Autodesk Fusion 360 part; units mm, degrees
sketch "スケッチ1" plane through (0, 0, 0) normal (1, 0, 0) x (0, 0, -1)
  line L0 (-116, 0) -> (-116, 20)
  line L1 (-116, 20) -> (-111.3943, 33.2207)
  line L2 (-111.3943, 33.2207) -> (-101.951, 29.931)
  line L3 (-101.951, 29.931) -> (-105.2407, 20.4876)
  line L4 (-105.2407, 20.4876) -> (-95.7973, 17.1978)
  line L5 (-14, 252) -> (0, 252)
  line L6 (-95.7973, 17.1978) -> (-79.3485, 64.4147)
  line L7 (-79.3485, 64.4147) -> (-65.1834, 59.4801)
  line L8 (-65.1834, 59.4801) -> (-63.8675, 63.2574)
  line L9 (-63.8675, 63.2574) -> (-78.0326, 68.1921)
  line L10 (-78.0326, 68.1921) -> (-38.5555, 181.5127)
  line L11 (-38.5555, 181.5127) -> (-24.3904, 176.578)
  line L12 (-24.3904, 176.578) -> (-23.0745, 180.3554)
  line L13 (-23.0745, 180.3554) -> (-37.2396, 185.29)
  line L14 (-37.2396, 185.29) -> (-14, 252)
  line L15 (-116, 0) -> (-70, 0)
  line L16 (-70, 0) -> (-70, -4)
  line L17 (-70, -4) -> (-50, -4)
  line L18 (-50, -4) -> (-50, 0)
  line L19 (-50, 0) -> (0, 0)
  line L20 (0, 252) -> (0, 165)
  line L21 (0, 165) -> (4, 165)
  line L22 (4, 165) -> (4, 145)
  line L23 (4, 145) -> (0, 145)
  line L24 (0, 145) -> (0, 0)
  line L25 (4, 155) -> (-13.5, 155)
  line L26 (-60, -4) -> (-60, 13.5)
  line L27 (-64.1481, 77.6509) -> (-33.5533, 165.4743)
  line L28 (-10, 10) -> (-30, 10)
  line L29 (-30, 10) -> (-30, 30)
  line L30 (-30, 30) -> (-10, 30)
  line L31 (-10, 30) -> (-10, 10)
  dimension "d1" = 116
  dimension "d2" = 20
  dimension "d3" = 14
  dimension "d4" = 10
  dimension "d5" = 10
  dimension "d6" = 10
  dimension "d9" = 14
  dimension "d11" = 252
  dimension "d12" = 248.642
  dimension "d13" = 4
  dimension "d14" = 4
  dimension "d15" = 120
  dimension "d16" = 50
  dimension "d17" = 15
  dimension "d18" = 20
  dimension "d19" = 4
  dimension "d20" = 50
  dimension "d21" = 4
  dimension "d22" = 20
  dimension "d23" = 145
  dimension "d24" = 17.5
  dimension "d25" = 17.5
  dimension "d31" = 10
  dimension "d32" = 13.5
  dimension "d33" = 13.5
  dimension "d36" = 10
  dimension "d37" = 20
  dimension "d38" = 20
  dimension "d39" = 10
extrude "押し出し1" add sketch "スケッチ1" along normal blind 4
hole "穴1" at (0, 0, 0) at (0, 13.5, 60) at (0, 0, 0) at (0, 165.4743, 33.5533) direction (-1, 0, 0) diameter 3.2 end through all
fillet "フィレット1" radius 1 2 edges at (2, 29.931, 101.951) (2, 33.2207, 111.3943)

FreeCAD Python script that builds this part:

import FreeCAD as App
import Part
import Sketcher
from FreeCAD import Vector


def edges_at(feature, points):
    """Names of the edges that pass closest to the given points."""
    edges = feature.Shape.Edges
    near = lambda p: min(range(len(edges)), key=lambda i: edges[i].distToShape(Part.Vertex(*p))[0])
    return sorted({f"Edge{near(p) + 1}" for p in points})


def add_polygon(sketch, points):
    """Adds a closed chain of lines whose ends are joined by coincident constraints."""
    first, n = sketch.GeometryCount, len(points)
    for a, b in zip(points, points[1:] + points[:1]):
        sketch.addGeometry(Part.LineSegment(App.Vector(*a, 0), App.Vector(*b, 0)), False)
    for i in range(n):
        sketch.addConstraint(Sketcher.Constraint("Coincident", first + i, 2, first + (i + 1) % n, 1))

doc = App.newDocument("Part")
body = doc.addObject("PartDesign::Body", "Body")

# Sketch on YZ plane
sketch1 = body.newObject("Sketcher::SketchObject", "Sketch")
sketch1.AttachmentSupport = (doc.getObject("YZ_Plane"), [""])
sketch1.MapMode = "FlatFace"
add_polygon(sketch1, [(20, 116), (0, 116), (0, 70), (-4, 70), (-4, 50), (0, 50), (0, 0), (145, 0), (145, -4), (165, -4), (165, 0), (252, 0), (252, 14), (185.29, 37.2396), (180.3554, 23.0745), (176.578, 24.3904), (181.5127, 38.5555), (68.1921, 78.0326), (63.2574, 63.8675), (59.4801, 65.1834), (64.4147, 79.3485), (17.1978, 95.7973), (20.4876, 105.2407), (29.931, 101.951), (33.2207, 111.3943)])  # lines 0-24
add_polygon(sketch1, [(30, 10), (10, 10), (10, 30), (30, 30)])  # lines 25-28
sketch1.addConstraint([
    Sketcher.Constraint("Horizontal", 0),
    Sketcher.Constraint("Vertical", 1),
    Sketcher.Constraint("Horizontal", 2),
    Sketcher.Constraint("Vertical", 3),
    Sketcher.Constraint("Horizontal", 4),
    Sketcher.Constraint("Vertical", 5),
    Sketcher.Constraint("Horizontal", 6),
    Sketcher.Constraint("Vertical", 7),
    Sketcher.Constraint("Horizontal", 8),
    Sketcher.Constraint("Vertical", 9),
    Sketcher.Constraint("Horizontal", 10),
    Sketcher.Constraint("Vertical", 11),
    Sketcher.Constraint("Horizontal", 25),
    Sketcher.Constraint("Vertical", 26),
    Sketcher.Constraint("Horizontal", 27),
    Sketcher.Constraint("Vertical", 28),
    Sketcher.Constraint("Coincident", 5, 2, -1, 1),
    Sketcher.Constraint("PointOnObject", 0, 2, -2),
    Sketcher.Constraint("PointOnObject", 9, 2, -1),
    Sketcher.Constraint("Perpendicular", 12, 13),
    Sketcher.Constraint("Perpendicular", 13, 14),
    Sketcher.Constraint("Perpendicular", 14, 15),
    Sketcher.Constraint("Perpendicular", 15, 16),
    Sketcher.Constraint("Perpendicular", 16, 17),
    Sketcher.Constraint("Perpendicular", 17, 18),
    Sketcher.Constraint("Perpendicular", 18, 19),
    Sketcher.Constraint("Perpendicular", 19, 20),
    Sketcher.Constraint("Perpendicular", 20, 21),
    Sketcher.Constraint("Perpendicular", 21, 22),
    Sketcher.Constraint("Perpendicular", 22, 23),
    Sketcher.Constraint("Perpendicular", 23, 24),
    Sketcher.Constraint("Equal", 0, 8),
    Sketcher.Constraint("Equal", 8, 25),
    Sketcher.Constraint("Equal", 27, 3),
    Sketcher.Constraint("Equal", 4, 7),
    Sketcher.Constraint("Equal", 3, 26),
    Sketcher.Constraint("Equal", 13, 15),
    Sketcher.Constraint("Equal", 15, 17),
    Sketcher.Constraint("Equal", 14, 18),
    Sketcher.Constraint("Equal", 17, 19),
    Sketcher.Constraint("Equal", 21, 22),
    Sketcher.Constraint("Equal", 22, 23),
    Sketcher.Constraint("DistanceX", 0, 2, 0, 1, 20.0),
    Sketcher.Constraint("DistanceX", 2, 2, 2, 1, 4.0),
    Sketcher.Constraint("DistanceX", 6, 1, 6, 2, 145.0),
    Sketcher.Constraint("DistanceY", 5, 2, 5, 1, 50.0),
    Sketcher.Constraint("DistanceY", 11, 1, 11, 2, 14.0),
    Sketcher.Constraint("Distance", 13, 15.0),
    Sketcher.Constraint("Distance", 14, 4.0),
    Sketcher.Constraint("Distance", 16, 120.0),
    Sketcher.Constraint("Distance", 20, 50.0),
    Sketcher.Constraint("Distance", 21, 10.0),
    Sketcher.Constraint("Distance", 24, 14.0),
    Sketcher.Constraint("DistanceY", -1, 1, 0, 2, 116.0),
    Sketcher.Constraint("DistanceX", -1, 1, 10, 2, 252.0),
    Sketcher.Constraint("DistanceX", -1, 1, 25, 2, 10.0),
    Sketcher.Constraint("DistanceY", -1, 1, 25, 2, 10.0),
])
pad1 = body.newObject("PartDesign::Pad", "Pad")
pad1.Profile = sketch1
pad1.Length = 4

# Sketch on YZ plane
sketch2 = body.newObject("Sketcher::SketchObject", "Sketch001")
sketch2.AttachmentSupport = (doc.getObject("YZ_Plane"), [""])
sketch2.MapMode = "FlatFace"
sketch2.addGeometry([
    Part.Circle(Vector(0, 0, 0), Vector(0, 0, 1), 1.6),
    Part.Circle(Vector(13.5, 60, 0), Vector(0, 0, 1), 1.6),
    Part.Circle(Vector(0, 0, 0), Vector(0, 0, 1), 1.6),
    Part.Circle(Vector(165.4743, 33.5533, 0), Vector(0, 0, 1), 1.6),
], False)
sketch2.addConstraint([
    Sketcher.Constraint("Coincident", 0, 3, -1, 1),
    Sketcher.Constraint("Coincident", 2, 3, -1, 1),
    Sketcher.Constraint("Equal", 0, 1),
    Sketcher.Constraint("Equal", 1, 2),
    Sketcher.Constraint("Equal", 2, 3),
    Sketcher.Constraint("Diameter", 0, 3.2),
    Sketcher.Constraint("DistanceY", -1, 1, 1, 3, 60.0),
    Sketcher.Constraint("DistanceX", -1, 1, 1, 3, 13.5),
    Sketcher.Constraint("DistanceX", -1, 1, 3, 3, 165.4743),
    Sketcher.Constraint("DistanceY", -1, 1, 3, 3, 33.5533),
])
doc.recompute()
hole = body.newObject("PartDesign::Hole", "Hole")
hole.Profile = sketch2
hole.ThreadType = "None"
hole.Diameter = 3.2
hole.DepthType = "ThroughAll"
doc.recompute()

fillet = body.newObject("PartDesign::Fillet", "Fillet")
fillet.Base = (hole, edges_at(hole, [(2, 29.931, 101.951), (2, 33.221, 111.394)]))
fillet.Radius = 1

doc.recompute()
